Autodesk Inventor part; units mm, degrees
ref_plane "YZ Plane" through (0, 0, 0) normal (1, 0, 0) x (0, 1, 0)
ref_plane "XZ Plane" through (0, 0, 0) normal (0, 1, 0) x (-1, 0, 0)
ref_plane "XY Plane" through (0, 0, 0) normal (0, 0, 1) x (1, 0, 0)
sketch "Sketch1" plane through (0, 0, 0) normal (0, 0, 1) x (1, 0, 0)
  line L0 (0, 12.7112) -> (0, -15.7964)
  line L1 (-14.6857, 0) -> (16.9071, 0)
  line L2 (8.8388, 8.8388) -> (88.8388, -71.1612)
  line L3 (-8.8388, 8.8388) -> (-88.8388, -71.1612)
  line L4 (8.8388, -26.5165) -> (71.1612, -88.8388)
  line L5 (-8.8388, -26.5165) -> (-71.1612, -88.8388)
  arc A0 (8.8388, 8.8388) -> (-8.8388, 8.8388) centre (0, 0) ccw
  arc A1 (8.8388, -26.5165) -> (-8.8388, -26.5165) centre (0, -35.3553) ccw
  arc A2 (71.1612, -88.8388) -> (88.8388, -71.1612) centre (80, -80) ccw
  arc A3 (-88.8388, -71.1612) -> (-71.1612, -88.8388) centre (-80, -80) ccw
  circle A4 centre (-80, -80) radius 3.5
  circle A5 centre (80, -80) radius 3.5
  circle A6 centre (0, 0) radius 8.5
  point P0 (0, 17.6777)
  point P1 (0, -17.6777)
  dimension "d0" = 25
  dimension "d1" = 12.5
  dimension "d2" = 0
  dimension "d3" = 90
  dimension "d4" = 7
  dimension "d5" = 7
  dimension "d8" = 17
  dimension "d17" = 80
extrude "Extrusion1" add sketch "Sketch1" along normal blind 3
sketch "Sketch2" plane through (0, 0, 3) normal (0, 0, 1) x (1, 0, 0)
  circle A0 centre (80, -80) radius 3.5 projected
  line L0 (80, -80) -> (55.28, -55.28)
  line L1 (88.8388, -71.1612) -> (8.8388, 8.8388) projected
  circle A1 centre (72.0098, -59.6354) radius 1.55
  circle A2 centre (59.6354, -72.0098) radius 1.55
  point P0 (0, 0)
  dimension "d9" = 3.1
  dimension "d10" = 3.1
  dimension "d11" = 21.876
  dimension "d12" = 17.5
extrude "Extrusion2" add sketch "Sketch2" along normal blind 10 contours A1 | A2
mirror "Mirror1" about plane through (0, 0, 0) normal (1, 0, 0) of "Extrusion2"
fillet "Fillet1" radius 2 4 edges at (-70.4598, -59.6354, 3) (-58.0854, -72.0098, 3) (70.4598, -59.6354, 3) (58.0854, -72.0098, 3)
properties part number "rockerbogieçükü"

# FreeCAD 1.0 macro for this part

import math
import FreeCAD as App
import Part
import Sketcher

V = App.Vector
Q = App.Units.Quantity


def edges_at(feature, points):
    """Names of the edges that pass closest to the given points."""
    edges = feature.Shape.Edges
    near = lambda p: min(range(len(edges)), key=lambda i: edges[i].distToShape(Part.Vertex(*p))[0])
    return sorted({f"Edge{near(p) + 1}" for p in points})

doc = App.newDocument("Part")
body = doc.addObject("PartDesign::Body", "Body")

# Sketch on XY plane
sketch1 = body.newObject("Sketcher::SketchObject", "Sketch")
sketch1.AttachmentSupport = (doc.getObject("XY_Plane"), [""])
sketch1.MapMode = "FlatFace"
sketch1.addGeometry([
    Part.ArcOfCircle(Part.Circle(V(0, 0, 0), V(0, 0, 1), 12.499951), math.radians(45), math.radians(90)),  # 0
    Part.ArcOfCircle(Part.Circle(V(0, 0, 0), V(0, 0, 1), 12.499951), math.radians(90), math.radians(135)),  # 1
    Part.LineSegment(V(-8.8388, 8.8388, 0), V(-88.8388, -71.1612, 0)),  # 2
    Part.ArcOfCircle(Part.Circle(V(-80, -80, 0), V(0, 0, 1), 12.499951), math.radians(135), math.radians(315)),  # 3
    Part.LineSegment(V(-71.1612, -88.8388, 0), V(-8.8388, -26.5165, 0)),  # 4
    Part.ArcOfCircle(Part.Circle(V(0, -35.3553, 0), V(0, 0, 1), 12.499951), math.radians(45), math.radians(135)),  # 5
    Part.LineSegment(V(8.8388, -26.5165, 0), V(71.1612, -88.8388, 0)),  # 6
    Part.ArcOfCircle(Part.Circle(V(80, -80, 0), V(0, 0, 1), 12.499951), math.radians(-135), math.radians(45)),  # 7
    Part.LineSegment(V(88.8388, -71.1612, 0), V(8.8388, 8.8388, 0)),  # 8
    Part.Circle(V(-80, -80, 0), V(0, 0, 1), 3.5),  # 9
    Part.Circle(V(80, -80, 0), V(0, 0, 1), 3.5),  # 10
    Part.Circle(V(0, 0, 0), V(0, 0, 1), 8.5),  # 11
], False)
sketch1.addConstraint([
    Sketcher.Constraint("Tangent", 0, 2, 1, 1),
    Sketcher.Constraint("Tangent", 1, 2, 2, 1),
    Sketcher.Constraint("Tangent", 2, 2, 3, 1),
    Sketcher.Constraint("Tangent", 3, 2, 4, 1),
    Sketcher.Constraint("Tangent", 4, 2, 5, 2),
    Sketcher.Constraint("Tangent", 5, 1, 6, 1),
    Sketcher.Constraint("Tangent", 6, 2, 7, 1),
    Sketcher.Constraint("Tangent", 7, 2, 8, 1),
    Sketcher.Constraint("Tangent", 8, 2, 0, 1),
    Sketcher.Constraint("Coincident", 0, 3, -1, 1),
    Sketcher.Constraint("Coincident", 11, 3, -1, 1),
    Sketcher.Constraint("Coincident", 9, 3, 3, 3),
    Sketcher.Constraint("Coincident", 10, 3, 7, 3),
    Sketcher.Constraint("Equal", 0, 1),
    Sketcher.Constraint("Equal", 1, 3),
    Sketcher.Constraint("Equal", 3, 5),
    Sketcher.Constraint("Equal", 5, 7),
    Sketcher.Constraint("Equal", 9, 10),
    Sketcher.Constraint("Symmetric", 3, 3, 7, 3, -2),
    Sketcher.Constraint("PointOnObject", 5, 3, -2),
    Sketcher.Constraint("PointOnObject", 0, 2, -2),
    Sketcher.Constraint("Parallel", 2, 4),
    Sketcher.Constraint("Perpendicular", 4, 6),
    Sketcher.Constraint("Diameter", 9, Q("7 mm")),
    Sketcher.Constraint("Diameter", 11, Q("17 mm")),
    Sketcher.Constraint("Radius", 0, Q("12.5 mm")),
    Sketcher.Constraint("DistanceX", 3, 3, -1, 1, Q("80 mm")),
])
pad1 = body.newObject("PartDesign::Pad", "Pad")
pad1.Profile = sketch1
pad1.Length = 3

# Sketch on XY plane
sketch2 = body.newObject("Sketcher::SketchObject", "Sketch001")
sketch2.AttachmentSupport = (doc.getObject("XY_Plane"), [""])
sketch2.MapMode = "FlatFace"
sketch2.AttachmentOffset = App.Placement(V(0, 0, 3), App.Rotation())
sketch2.addGeometry([
    Part.Circle(V(72.0098, -59.6354, 0), V(0, 0, 1), 1.55),
    Part.Circle(V(59.6354, -72.0098, 0), V(0, 0, 1), 1.55),
], False)
sketch2.addConstraint([
    Sketcher.Constraint("Equal", 0, 1),
    Sketcher.Constraint("Diameter", 0, Q("3.1 mm")),
    Sketcher.Constraint("DistanceX", -1, 1, 0, 3, Q("72.0098 mm")),
    Sketcher.Constraint("DistanceY", 0, 3, -1, 1, Q("59.6354 mm")),
    Sketcher.Constraint("DistanceX", -1, 1, 1, 3, Q("59.6354 mm")),
    Sketcher.Constraint("DistanceY", 1, 3, -1, 1, Q("72.0098 mm")),
])
pad2 = body.newObject("PartDesign::Pad", "Pad001")
pad2.Profile = sketch2
pad2.Length = 10
doc.recompute()

mirrored = body.newObject("PartDesign::Mirrored", "Mirrored")
mirrored.Originals = [pad2]
mirrored.MirrorPlane = (doc.getObject("YZ_Plane"), [""])
body.Tip = mirrored
doc.recompute()

fillet = body.newObject("PartDesign::Fillet", "Fillet")
fillet.Base = (mirrored, edges_at(mirrored, [
    (-70.46, -59.635, 3),
    (-58.085, -72.01, 3),
    (70.46, -59.635, 3),
    (58.085, -72.01, 3),
]))
fillet.Radius = 2

doc.recompute()
